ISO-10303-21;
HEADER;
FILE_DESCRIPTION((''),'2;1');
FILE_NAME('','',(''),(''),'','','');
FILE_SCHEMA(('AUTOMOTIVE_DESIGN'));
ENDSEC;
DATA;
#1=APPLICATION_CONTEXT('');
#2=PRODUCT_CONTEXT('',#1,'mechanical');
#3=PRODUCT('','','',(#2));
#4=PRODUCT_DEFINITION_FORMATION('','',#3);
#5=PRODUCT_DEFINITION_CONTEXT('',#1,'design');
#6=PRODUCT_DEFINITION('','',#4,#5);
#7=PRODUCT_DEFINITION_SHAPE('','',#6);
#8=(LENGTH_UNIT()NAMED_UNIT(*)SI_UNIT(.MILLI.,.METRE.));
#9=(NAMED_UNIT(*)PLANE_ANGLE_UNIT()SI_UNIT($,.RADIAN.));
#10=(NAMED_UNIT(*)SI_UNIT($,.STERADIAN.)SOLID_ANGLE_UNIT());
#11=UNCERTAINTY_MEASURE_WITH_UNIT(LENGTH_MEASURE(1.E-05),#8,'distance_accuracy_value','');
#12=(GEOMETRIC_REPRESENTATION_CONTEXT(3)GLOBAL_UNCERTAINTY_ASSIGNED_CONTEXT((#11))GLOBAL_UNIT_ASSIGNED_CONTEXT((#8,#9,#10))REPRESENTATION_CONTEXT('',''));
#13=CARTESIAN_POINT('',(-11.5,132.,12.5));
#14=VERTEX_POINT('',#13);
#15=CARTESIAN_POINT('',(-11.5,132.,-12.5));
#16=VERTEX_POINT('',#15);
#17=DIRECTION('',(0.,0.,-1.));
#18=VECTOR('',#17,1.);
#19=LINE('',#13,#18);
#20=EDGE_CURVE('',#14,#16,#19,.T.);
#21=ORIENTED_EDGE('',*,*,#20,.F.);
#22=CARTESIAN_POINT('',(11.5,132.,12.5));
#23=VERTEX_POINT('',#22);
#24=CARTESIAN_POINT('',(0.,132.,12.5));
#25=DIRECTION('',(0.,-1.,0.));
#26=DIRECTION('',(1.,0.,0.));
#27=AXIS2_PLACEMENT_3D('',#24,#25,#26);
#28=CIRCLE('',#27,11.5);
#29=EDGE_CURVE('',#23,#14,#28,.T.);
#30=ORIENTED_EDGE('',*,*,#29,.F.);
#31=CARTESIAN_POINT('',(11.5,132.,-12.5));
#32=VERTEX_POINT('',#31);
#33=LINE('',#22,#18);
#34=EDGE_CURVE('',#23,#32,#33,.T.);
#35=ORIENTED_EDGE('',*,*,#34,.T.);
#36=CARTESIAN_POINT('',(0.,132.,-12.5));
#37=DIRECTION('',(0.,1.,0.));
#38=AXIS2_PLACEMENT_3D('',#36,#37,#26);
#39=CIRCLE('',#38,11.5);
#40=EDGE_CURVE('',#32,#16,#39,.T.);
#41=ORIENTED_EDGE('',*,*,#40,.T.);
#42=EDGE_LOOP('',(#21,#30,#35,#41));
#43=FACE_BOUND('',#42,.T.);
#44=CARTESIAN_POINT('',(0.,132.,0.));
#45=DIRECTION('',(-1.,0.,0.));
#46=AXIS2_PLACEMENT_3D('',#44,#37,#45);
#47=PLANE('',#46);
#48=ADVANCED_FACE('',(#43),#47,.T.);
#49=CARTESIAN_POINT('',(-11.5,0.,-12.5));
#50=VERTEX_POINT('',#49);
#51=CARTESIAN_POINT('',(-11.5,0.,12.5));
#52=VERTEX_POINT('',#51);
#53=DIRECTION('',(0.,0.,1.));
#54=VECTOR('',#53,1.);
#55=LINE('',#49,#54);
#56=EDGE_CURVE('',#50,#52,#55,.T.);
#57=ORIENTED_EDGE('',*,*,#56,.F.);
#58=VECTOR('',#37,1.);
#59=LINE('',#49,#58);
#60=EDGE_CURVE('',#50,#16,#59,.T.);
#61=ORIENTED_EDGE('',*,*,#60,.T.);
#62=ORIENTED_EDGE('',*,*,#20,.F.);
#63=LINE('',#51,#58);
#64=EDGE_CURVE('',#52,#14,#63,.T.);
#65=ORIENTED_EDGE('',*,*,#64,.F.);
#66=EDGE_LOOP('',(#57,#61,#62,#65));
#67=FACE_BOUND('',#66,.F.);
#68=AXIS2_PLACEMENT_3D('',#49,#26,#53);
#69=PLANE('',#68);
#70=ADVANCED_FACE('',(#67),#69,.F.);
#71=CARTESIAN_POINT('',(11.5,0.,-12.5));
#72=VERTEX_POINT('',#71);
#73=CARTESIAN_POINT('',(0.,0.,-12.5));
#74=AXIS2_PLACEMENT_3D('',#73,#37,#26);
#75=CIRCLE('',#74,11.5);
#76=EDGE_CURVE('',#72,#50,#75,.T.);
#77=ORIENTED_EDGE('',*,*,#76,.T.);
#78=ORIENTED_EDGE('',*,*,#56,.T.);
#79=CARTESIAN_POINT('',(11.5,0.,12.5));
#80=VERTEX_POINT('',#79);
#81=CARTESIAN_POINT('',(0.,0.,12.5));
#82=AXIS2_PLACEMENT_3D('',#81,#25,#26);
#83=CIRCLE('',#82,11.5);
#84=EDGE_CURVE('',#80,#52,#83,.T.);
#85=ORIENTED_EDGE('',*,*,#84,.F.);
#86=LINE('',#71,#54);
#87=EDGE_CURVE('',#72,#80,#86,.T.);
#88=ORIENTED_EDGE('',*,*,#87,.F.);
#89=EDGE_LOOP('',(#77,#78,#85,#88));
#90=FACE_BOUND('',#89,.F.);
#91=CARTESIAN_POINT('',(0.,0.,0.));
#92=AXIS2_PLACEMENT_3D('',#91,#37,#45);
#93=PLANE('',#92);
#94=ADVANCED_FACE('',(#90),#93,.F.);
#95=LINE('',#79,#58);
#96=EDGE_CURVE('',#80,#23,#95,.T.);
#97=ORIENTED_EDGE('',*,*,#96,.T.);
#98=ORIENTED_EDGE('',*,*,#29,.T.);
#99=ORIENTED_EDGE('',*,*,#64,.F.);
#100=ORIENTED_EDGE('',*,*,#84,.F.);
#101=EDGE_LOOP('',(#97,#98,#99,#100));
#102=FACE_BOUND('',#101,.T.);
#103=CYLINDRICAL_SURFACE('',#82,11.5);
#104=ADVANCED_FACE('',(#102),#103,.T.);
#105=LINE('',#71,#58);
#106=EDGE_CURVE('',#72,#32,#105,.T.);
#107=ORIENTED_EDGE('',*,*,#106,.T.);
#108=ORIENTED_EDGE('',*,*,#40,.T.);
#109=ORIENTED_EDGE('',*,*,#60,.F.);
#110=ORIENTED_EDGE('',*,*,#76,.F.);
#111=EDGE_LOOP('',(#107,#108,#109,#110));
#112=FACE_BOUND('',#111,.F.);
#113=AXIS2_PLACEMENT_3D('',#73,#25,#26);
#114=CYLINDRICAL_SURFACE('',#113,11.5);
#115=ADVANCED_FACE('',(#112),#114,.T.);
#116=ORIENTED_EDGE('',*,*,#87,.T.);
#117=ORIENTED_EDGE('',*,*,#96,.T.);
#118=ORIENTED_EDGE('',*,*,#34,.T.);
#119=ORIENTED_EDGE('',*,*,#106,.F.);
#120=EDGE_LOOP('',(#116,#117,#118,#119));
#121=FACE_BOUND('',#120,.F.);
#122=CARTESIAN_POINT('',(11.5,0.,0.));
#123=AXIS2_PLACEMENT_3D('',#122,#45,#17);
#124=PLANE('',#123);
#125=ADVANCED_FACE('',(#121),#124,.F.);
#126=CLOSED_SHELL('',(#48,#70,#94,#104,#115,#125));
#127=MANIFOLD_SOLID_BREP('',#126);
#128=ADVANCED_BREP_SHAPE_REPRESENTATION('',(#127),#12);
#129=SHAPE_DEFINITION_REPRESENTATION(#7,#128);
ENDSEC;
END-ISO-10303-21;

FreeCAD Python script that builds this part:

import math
import FreeCAD as App
import Part
import Sketcher
Q = App.Units.Quantity

doc = App.newDocument("Part")
params = doc.addObject("Spreadsheet::Sheet", "Params")
for row, (alias, value) in enumerate([
    ("sketch1_radius", "11.5 mm"),
    ("sketch1_height", "12.5 mm"),
    ("pad1_length", "132 mm"),
], start=1):
    params.set(f"A{row}", alias)
    params.set(f"B{row}", "=" + value)
    params.setAlias(f"B{row}", alias)

body = doc.addObject("PartDesign::Body", "Body")

# Sketch on XZ plane
sketch1 = doc.addObject("Sketcher::SketchObject", "Sketch")
body.addObject(sketch1)
sketch1.AttachmentSupport = (doc.XZ_Plane, [""])
sketch1.MapMode = "FlatFace"
sketch1.addGeometry([
    Part.LineSegment(App.Vector(-12, 0, 0), App.Vector(12, 0, 0)),
    Part.LineSegment(App.Vector(12, 0, 0), App.Vector(12, -12, 0)),
    Part.ArcOfCircle(Part.Circle(App.Vector(0, -12, 0), App.Vector(0, 0, 1), 12), math.radians(180), math.radians(360)),
    Part.LineSegment(App.Vector(-12, -12, 0), App.Vector(-12, 0, 0)),
], False)
sketch1.addConstraint([
    Sketcher.Constraint("Coincident", 0, 2, 1, 1),
    Sketcher.Constraint("Tangent", 1, 2, 2, 2),
    Sketcher.Constraint("Tangent", 2, 1, 3, 1),
    Sketcher.Constraint("Coincident", 3, 2, 0, 1),
    Sketcher.Constraint("Horizontal", 0),
    Sketcher.Constraint("Vertical", 1),
    Sketcher.Constraint("Vertical", 3),
    Sketcher.Constraint("Symmetric", 0, 2, 3, 2, -1, 1),
    Sketcher.Constraint("Radius", 2, Q("11.5 mm")),
    Sketcher.Constraint("DistanceY", 1, 2, 1, 1, Q("12.5 mm")),
])
sketch1.setExpression("Constraints[8]", "Params.sketch1_radius")
sketch1.setExpression("Constraints[9]", "Params.sketch1_height")
pad1 = doc.addObject("PartDesign::Pad", "Pad")
body.addObject(pad1)
pad1.Profile = sketch1
pad1.setExpression("Length", "Params.pad1_length")
pad1.Reversed = True
doc.recompute()

mirrored = doc.addObject("PartDesign::Mirrored", "Mirrored")
body.addObject(mirrored)
mirrored.Originals = [pad1]
mirrored.MirrorPlane = (doc.XY_Plane, [""])
body.Tip = mirrored

doc.recompute()
